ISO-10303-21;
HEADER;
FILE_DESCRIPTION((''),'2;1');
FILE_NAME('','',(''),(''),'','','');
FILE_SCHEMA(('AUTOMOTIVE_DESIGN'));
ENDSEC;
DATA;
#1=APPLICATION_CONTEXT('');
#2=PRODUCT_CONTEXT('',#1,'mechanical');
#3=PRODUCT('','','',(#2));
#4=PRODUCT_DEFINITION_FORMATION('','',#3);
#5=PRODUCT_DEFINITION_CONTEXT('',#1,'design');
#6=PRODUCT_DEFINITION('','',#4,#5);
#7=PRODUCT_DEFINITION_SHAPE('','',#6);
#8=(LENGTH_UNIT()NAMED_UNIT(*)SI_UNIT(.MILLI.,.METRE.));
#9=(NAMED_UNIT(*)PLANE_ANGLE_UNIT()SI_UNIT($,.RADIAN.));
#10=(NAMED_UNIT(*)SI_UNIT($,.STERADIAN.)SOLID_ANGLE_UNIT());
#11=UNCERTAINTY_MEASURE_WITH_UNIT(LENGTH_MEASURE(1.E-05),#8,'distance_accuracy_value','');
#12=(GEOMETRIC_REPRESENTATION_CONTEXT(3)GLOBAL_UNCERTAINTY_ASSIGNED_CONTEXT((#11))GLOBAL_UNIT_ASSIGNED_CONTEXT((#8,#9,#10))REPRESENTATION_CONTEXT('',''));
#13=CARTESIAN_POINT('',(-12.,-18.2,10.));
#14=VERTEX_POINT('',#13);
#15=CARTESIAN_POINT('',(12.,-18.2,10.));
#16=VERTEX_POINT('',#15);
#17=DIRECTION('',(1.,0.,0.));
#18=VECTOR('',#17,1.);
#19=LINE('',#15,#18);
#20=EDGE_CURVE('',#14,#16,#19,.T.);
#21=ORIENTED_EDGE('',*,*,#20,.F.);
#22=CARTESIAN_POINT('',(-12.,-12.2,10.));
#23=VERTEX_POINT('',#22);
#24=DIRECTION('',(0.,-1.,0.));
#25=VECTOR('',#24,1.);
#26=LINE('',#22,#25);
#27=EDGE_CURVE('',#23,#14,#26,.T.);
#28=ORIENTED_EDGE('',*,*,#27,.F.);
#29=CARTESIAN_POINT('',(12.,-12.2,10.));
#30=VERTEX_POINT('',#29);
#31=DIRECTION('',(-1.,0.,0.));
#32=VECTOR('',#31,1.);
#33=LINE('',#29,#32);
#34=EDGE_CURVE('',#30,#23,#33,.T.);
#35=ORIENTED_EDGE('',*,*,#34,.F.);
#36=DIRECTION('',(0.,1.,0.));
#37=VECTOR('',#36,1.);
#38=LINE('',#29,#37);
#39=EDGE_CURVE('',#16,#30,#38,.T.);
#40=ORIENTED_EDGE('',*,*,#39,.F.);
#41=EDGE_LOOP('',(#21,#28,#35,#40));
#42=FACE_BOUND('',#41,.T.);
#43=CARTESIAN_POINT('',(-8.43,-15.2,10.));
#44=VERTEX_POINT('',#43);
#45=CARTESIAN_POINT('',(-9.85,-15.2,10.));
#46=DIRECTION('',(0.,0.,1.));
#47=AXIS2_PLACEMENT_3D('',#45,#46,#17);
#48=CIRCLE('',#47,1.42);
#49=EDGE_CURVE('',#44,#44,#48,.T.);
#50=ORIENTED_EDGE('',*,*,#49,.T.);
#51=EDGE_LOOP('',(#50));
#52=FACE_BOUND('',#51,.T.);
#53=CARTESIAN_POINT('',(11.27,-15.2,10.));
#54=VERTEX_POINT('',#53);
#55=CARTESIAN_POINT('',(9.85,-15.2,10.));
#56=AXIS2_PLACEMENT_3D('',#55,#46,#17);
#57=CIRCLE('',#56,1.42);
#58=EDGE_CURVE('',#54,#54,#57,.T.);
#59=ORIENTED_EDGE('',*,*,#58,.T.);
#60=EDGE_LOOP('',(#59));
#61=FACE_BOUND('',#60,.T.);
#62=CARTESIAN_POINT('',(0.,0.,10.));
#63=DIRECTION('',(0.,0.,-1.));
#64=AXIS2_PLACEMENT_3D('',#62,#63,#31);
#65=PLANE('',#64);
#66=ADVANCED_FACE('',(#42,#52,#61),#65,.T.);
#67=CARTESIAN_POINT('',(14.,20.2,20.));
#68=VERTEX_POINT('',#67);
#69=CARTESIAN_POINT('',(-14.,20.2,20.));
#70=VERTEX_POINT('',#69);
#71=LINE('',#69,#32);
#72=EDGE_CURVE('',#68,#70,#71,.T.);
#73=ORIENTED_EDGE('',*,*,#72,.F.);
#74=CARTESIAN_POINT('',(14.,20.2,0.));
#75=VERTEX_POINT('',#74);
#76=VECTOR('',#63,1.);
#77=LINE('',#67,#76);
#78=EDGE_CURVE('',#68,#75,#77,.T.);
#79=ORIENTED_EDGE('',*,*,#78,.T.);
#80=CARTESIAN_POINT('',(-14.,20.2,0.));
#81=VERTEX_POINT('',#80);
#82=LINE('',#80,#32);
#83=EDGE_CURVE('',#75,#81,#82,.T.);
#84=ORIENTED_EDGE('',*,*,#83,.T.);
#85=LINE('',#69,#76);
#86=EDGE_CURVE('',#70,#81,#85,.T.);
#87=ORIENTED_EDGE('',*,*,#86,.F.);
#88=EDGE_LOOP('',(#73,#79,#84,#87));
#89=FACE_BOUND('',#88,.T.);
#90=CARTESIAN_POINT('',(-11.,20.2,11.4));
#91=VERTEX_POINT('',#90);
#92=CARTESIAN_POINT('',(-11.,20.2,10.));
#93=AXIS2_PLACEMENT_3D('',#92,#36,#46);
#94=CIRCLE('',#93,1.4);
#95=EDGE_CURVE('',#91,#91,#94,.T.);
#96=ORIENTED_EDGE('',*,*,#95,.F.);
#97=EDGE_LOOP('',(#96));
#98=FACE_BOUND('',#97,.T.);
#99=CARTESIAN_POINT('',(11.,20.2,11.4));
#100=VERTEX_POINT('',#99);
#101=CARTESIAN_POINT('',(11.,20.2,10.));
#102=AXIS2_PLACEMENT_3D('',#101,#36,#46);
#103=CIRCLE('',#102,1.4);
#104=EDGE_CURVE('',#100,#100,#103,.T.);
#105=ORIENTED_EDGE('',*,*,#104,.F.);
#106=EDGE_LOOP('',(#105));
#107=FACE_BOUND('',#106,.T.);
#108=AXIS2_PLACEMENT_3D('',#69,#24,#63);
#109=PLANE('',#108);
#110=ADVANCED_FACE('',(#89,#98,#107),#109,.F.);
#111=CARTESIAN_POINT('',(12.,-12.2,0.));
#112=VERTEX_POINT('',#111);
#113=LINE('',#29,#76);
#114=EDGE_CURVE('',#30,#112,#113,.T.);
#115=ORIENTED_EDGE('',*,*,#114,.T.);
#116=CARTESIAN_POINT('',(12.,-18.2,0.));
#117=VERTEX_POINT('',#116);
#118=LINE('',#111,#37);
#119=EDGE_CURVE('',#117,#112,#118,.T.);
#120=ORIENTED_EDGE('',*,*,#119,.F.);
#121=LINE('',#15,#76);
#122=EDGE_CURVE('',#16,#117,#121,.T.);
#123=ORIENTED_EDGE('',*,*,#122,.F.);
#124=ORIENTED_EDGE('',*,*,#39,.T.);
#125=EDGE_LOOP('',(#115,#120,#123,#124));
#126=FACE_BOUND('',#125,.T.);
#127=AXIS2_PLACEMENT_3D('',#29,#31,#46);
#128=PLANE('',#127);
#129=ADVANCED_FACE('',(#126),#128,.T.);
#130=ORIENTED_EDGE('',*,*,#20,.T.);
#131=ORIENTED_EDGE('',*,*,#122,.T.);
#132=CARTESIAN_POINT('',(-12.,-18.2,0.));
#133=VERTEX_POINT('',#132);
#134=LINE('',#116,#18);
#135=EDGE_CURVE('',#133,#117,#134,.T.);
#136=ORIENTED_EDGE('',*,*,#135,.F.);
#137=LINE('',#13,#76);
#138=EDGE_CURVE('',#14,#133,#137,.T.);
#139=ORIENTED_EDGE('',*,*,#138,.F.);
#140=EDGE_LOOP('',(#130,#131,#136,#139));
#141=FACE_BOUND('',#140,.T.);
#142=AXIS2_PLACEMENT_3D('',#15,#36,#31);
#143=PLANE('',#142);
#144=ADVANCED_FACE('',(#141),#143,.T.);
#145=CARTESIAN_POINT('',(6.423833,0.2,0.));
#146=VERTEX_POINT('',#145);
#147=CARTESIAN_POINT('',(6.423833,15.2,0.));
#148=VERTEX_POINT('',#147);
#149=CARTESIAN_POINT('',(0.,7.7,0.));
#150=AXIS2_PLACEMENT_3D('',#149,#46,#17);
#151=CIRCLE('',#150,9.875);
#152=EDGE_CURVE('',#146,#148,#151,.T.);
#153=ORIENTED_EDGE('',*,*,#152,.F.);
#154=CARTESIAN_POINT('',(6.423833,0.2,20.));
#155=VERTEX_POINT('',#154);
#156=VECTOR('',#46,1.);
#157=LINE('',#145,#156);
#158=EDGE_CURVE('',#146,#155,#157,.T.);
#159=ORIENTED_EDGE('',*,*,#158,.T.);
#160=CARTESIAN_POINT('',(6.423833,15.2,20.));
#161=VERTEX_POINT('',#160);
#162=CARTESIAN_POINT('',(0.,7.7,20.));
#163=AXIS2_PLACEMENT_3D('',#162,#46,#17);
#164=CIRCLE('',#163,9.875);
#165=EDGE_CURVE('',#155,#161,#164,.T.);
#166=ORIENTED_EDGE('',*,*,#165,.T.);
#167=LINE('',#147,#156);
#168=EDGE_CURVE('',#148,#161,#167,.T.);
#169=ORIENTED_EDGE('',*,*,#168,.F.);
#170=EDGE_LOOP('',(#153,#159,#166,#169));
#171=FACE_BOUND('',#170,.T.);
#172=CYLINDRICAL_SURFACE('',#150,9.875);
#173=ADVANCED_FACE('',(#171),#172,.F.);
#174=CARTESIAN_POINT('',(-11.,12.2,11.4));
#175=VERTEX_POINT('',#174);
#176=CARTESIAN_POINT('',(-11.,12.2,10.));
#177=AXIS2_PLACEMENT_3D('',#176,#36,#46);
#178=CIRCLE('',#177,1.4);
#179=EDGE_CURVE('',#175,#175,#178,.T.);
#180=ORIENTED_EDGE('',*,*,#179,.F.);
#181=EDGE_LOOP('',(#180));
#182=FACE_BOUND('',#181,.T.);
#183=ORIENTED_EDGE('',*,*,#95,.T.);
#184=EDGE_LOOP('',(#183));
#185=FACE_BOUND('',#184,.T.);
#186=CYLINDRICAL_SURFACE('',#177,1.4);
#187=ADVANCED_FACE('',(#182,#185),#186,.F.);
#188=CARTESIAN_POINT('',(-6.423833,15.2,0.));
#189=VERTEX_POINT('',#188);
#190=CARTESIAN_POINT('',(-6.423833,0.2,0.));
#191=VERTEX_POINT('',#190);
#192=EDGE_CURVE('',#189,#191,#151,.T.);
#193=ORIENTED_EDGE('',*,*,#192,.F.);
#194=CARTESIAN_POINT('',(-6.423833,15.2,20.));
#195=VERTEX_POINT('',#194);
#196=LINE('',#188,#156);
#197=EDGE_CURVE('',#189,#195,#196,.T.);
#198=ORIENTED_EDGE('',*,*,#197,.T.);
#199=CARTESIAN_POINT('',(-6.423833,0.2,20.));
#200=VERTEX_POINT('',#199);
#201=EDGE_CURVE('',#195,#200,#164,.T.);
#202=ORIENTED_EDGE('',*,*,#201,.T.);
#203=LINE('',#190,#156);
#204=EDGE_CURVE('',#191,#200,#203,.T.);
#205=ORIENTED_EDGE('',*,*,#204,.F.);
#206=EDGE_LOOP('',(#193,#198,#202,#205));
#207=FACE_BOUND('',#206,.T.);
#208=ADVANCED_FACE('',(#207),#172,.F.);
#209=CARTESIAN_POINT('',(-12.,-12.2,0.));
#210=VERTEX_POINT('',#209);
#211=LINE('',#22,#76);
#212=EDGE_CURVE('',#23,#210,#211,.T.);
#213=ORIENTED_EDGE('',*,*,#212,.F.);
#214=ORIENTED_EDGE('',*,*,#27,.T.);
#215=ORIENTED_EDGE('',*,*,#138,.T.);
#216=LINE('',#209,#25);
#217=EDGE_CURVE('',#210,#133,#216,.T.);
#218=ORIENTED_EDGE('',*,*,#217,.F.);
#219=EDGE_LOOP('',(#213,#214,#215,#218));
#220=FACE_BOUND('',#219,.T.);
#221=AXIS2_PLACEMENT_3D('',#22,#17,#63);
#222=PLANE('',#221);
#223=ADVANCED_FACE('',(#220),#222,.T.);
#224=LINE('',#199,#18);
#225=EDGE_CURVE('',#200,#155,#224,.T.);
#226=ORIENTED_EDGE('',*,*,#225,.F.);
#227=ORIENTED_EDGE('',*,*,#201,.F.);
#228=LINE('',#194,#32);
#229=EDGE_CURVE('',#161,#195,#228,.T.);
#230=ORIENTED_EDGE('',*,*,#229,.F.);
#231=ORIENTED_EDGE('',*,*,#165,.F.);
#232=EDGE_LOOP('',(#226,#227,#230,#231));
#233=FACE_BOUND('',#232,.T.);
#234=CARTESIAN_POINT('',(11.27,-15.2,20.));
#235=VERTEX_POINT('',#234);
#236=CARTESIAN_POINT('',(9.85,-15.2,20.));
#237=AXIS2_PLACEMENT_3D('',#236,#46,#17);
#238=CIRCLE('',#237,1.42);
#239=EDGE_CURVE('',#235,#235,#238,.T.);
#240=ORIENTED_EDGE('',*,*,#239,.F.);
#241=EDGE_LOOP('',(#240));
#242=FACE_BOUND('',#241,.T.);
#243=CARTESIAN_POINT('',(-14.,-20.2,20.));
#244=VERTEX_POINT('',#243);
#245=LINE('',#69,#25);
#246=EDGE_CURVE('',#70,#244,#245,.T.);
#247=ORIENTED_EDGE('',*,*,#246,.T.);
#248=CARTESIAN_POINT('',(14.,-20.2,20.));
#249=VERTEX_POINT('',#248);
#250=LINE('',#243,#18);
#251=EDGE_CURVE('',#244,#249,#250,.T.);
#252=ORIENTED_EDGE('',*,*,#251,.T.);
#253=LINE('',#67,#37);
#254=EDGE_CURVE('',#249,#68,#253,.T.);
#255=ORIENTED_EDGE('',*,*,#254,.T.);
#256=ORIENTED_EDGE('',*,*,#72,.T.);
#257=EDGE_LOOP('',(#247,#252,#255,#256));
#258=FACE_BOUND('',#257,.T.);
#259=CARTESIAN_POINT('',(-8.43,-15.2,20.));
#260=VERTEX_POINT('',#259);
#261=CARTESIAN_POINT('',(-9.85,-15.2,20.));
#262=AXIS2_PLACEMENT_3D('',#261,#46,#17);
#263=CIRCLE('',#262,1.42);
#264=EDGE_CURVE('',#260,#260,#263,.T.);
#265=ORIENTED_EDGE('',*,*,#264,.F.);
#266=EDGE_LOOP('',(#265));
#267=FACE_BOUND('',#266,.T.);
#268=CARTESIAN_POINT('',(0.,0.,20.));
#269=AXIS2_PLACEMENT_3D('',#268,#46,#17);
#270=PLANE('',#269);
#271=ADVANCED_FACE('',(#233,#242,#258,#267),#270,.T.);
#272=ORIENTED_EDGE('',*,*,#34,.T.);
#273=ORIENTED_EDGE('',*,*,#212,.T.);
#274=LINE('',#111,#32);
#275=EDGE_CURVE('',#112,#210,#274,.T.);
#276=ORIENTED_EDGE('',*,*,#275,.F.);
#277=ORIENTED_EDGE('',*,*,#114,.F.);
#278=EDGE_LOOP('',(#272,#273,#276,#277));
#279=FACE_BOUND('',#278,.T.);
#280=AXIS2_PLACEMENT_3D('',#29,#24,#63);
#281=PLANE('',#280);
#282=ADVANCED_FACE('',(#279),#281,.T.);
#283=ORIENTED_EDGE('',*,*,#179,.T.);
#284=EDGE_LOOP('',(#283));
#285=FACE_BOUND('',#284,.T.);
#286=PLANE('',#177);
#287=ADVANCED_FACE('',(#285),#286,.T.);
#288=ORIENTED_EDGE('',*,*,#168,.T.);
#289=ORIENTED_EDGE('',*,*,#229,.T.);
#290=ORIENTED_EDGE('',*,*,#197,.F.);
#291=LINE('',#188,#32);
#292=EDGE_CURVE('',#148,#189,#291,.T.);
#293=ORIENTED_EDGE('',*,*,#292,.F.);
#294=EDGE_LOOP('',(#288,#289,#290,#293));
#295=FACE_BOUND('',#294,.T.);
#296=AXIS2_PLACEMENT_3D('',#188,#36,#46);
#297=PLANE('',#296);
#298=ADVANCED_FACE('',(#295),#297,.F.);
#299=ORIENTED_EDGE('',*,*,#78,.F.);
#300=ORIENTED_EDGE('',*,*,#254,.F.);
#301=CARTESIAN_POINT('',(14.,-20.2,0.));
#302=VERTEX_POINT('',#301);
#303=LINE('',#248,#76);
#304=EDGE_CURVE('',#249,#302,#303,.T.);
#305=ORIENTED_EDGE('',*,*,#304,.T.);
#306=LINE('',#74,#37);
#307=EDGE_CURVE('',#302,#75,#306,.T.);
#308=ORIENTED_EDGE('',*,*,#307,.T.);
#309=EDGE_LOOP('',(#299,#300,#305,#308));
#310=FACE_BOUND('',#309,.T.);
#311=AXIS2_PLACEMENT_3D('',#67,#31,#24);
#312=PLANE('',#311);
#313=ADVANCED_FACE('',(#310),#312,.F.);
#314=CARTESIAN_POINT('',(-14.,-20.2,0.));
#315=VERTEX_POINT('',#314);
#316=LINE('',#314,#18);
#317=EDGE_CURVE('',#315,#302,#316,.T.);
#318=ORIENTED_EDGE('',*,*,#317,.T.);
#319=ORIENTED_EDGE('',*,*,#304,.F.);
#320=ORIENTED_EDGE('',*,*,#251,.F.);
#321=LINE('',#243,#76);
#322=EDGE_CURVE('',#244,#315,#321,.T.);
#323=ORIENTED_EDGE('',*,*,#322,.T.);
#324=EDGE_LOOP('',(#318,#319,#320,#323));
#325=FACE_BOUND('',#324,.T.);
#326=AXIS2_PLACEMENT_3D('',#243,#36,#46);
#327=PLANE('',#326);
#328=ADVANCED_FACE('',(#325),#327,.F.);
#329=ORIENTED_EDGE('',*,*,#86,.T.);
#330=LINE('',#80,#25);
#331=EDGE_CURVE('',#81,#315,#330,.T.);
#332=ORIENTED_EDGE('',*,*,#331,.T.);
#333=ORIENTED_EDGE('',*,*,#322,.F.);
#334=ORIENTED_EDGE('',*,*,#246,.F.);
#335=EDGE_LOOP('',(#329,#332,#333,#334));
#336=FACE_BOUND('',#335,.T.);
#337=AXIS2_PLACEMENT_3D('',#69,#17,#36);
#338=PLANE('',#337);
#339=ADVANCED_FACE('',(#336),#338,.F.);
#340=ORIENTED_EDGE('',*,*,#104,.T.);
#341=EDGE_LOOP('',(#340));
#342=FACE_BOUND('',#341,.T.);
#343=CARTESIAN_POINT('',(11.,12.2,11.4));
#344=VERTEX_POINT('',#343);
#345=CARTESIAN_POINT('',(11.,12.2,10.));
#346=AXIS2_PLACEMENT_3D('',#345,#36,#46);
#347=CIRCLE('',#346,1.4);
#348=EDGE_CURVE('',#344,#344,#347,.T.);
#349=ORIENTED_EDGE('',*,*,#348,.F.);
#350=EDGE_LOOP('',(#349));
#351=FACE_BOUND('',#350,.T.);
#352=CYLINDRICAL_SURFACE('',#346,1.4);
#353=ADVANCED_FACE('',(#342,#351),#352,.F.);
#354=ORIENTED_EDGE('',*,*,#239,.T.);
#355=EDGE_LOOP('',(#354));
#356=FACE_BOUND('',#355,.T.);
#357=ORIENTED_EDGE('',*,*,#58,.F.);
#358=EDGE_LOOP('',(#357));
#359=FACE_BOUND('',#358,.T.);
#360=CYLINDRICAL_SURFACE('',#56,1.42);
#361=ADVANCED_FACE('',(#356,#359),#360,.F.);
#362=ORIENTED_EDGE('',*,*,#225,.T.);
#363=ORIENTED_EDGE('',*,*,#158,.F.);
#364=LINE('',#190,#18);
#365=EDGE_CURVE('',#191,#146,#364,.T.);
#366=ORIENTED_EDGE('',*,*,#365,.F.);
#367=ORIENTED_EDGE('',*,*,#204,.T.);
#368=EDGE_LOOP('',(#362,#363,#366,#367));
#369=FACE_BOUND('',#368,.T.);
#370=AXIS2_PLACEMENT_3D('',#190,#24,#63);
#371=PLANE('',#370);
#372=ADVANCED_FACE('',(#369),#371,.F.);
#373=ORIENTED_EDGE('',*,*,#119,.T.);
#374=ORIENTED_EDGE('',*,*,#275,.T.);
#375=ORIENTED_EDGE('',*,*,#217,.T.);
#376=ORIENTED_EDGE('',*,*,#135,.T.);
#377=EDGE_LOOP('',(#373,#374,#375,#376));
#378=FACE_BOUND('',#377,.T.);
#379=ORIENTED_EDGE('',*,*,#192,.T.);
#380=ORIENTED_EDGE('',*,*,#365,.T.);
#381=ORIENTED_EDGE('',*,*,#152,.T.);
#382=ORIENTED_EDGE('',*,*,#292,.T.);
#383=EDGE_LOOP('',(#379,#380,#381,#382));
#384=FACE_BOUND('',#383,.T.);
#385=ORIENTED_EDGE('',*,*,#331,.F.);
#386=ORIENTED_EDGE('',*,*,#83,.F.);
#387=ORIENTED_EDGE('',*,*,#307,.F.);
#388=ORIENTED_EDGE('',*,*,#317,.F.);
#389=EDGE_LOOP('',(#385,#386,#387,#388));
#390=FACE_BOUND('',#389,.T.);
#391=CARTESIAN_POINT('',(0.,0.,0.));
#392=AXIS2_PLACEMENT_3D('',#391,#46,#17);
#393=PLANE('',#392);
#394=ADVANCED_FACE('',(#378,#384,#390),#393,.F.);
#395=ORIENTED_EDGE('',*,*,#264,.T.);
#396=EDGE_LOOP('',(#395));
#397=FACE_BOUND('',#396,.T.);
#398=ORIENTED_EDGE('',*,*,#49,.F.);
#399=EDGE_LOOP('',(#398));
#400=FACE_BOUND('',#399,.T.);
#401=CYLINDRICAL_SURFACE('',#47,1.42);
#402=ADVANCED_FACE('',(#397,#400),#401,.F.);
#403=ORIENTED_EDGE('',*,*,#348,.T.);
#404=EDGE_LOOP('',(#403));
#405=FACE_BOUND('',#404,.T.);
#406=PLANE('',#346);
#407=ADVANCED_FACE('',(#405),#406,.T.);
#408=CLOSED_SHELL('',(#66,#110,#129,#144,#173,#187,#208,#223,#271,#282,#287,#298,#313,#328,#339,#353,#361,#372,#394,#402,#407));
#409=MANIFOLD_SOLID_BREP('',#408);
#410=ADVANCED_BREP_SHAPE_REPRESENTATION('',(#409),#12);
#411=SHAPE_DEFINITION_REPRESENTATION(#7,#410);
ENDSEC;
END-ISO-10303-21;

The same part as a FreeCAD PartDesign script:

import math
import FreeCAD as App
import Part
import Sketcher
Q = App.Units.Quantity


def add_polygon(sketch, points):
    """Adds a closed chain of lines whose ends are joined by coincident constraints."""
    first, n = sketch.GeometryCount, len(points)
    for a, b in zip(points, points[1:] + points[:1]):
        sketch.addGeometry(Part.LineSegment(App.Vector(*a, 0), App.Vector(*b, 0)), False)
    for i in range(n):
        sketch.addConstraint(Sketcher.Constraint("Coincident", first + i, 2, first + (i + 1) % n, 1))

doc = App.newDocument("Part")
params = doc.addObject("Spreadsheet::Sheet", "Params")
for row, (alias, value) in enumerate([
    ("sketch1_width", "28 mm"),
    ("sketch1_height", "40.4 mm"),
    ("pad1_length", "20 mm"),
    ("sketch3_diameter", "2.84 mm"),
    ("pocket2_length", "10 mm"),
    ("sketch4_width", "24 mm"),
    ("sketch4_height", "6 mm"),
    ("pocket3_length", "10 mm"),
    ("sketch5_diameter", "2.8 mm"),
    ("pocket4_length", "8 mm"),
], start=1):
    params.set(f"A{row}", alias)
    params.set(f"B{row}", "=" + value)
    params.setAlias(f"B{row}", alias)

body = doc.addObject("PartDesign::Body", "Body")

sketch1 = body.newObject("Sketcher::SketchObject", "Sketch")
sketch1.AttachmentSupport = (doc.getObject("XY_Plane"), [""])
sketch1.MapMode = "FlatFace"
add_polygon(sketch1, [(-14, 20.2), (-14, -20.2), (14, -20.2), (14, 20.2)])
sketch1.addConstraint(Sketcher.Constraint("Vertical", 0))
sketch1.addConstraint(Sketcher.Constraint("Horizontal", 1))
sketch1.addConstraint(Sketcher.Constraint("Vertical", 2))
sketch1.addConstraint(Sketcher.Constraint("Horizontal", 3))
sketch1.addConstraint(Sketcher.Constraint("Symmetric", 0, 2, 2, 2, -1, 1))
sketch1.addConstraint(Sketcher.Constraint("DistanceX", 1, 1, 1, 2, Q("28 mm")))
sketch1.addConstraint(Sketcher.Constraint("DistanceY", 0, 2, 0, 1, Q("40.4 mm")))
sketch1.setExpression("Constraints[9]", "Params.sketch1_width")
sketch1.setExpression("Constraints[10]", "Params.sketch1_height")
pad1 = body.newObject("PartDesign::Pad", "Pad")
pad1.Profile = sketch1
pad1.setExpression("Length", "Params.pad1_length")

sketch2 = body.newObject("Sketcher::SketchObject", "Sketch001")
sketch2.AttachmentSupport = (doc.getObject("XY_Plane"), [""])
sketch2.MapMode = "FlatFace"
sketch2.AttachmentOffset = App.Placement(App.Vector(0, 0, 20), App.Rotation())
sketch2.addGeometry(Part.LineSegment(App.Vector(6.423833, 15.2, 0), App.Vector(-6.423833, 15.2, 0)), False)
sketch2.addGeometry(Part.ArcOfCircle(Part.Circle(App.Vector(0, 7.7, 0), App.Vector(0, 0, 1), 9.875), math.radians(130.580419), math.radians(229.419581)), False)
sketch2.addGeometry(Part.LineSegment(App.Vector(-6.423833, 0.2, 0), App.Vector(6.423833, 0.2, 0)), False)
sketch2.addGeometry(Part.ArcOfCircle(Part.Circle(App.Vector(0, 7.7, 0), App.Vector(0, 0, 1), 9.875), math.radians(-49.419581), math.radians(49.419581)), False)
sketch2.addConstraint(Sketcher.Constraint("Coincident", 0, 2, 1, 1))
sketch2.addConstraint(Sketcher.Constraint("Coincident", 1, 2, 2, 1))
sketch2.addConstraint(Sketcher.Constraint("Coincident", 2, 2, 3, 1))
sketch2.addConstraint(Sketcher.Constraint("Coincident", 3, 2, 0, 1))
sketch2.addConstraint(Sketcher.Constraint("Horizontal", 0))
sketch2.addConstraint(Sketcher.Constraint("Horizontal", 2))
sketch2.addConstraint(Sketcher.Constraint("Coincident", 3, 3, 1, 3))
sketch2.addConstraint(Sketcher.Constraint("Equal", 1, 3))
sketch2.addConstraint(Sketcher.Constraint("PointOnObject", 1, 3, -2))
sketch2.addConstraint(Sketcher.Constraint("Vertical", 0, 2, 1, 2))
sketch2.addConstraint(Sketcher.Constraint("Radius", 1, Q("9.875 mm")))
sketch2.addConstraint(Sketcher.Constraint("DistanceY", 1, 2, 0, 2, Q("15 mm")))
sketch2.addConstraint(Sketcher.Constraint("DistanceY", -1, 1, 1, 3, Q("7.7 mm")))
pocket1 = body.newObject("PartDesign::Pocket", "Pocket")
pocket1.Profile = sketch2
pocket1.Type = "ThroughAll"

sketch3 = body.newObject("Sketcher::SketchObject", "Sketch002")
sketch3.AttachmentSupport = (doc.getObject("XY_Plane"), [""])
sketch3.MapMode = "FlatFace"
sketch3.AttachmentOffset = App.Placement(App.Vector(0, 0, 20), App.Rotation())
sketch3.addGeometry(Part.Circle(App.Vector(-9.85, -15.2, 0), App.Vector(0, 0, 1), 1.42), False)
sketch3.addGeometry(Part.Circle(App.Vector(9.85, -15.2, 0), App.Vector(0, 0, 1), 1.42), False)
sketch3.addConstraint(Sketcher.Constraint("Equal", 0, 1))
sketch3.addConstraint(Sketcher.Constraint("Symmetric", 0, 3, 1, 3, -2))
sketch3.addConstraint(Sketcher.Constraint("Diameter", 0, Q("2.84 mm")))
sketch3.addConstraint(Sketcher.Constraint("DistanceY", 0, 3, -1, 1, Q("15.2 mm")))
sketch3.addConstraint(Sketcher.Constraint("DistanceX", 0, 3, 1, 3, Q("19.7 mm")))
sketch3.setExpression("Constraints[2]", "Params.sketch3_diameter")
pocket2 = body.newObject("PartDesign::Pocket", "Pocket001")
pocket2.Profile = sketch3
pocket2.setExpression("Length", "Params.pocket2_length")

sketch4 = body.newObject("Sketcher::SketchObject", "Sketch003")
sketch4.AttachmentSupport = (doc.getObject("XY_Plane"), [""])
sketch4.MapMode = "FlatFace"
add_polygon(sketch4, [(-12, -12.2), (-12, -18.2), (12, -18.2), (12, -12.2)])
sketch4.addConstraint(Sketcher.Constraint("Vertical", 0))
sketch4.addConstraint(Sketcher.Constraint("Horizontal", 1))
sketch4.addConstraint(Sketcher.Constraint("Vertical", 2))
sketch4.addConstraint(Sketcher.Constraint("Horizontal", 3))
sketch4.addConstraint(Sketcher.Constraint("DistanceX", 1, 1, 1, 2, Q("24 mm")))
sketch4.addConstraint(Sketcher.Constraint("DistanceY", 0, 2, 0, 1, Q("6 mm")))
sketch4.addConstraint(Sketcher.Constraint("DistanceX", 0, 2, -1, 1, Q("12 mm")))
sketch4.addConstraint(Sketcher.Constraint("DistanceY", 0, 2, -1, 1, Q("18.2 mm")))
sketch4.setExpression("Constraints[8]", "Params.sketch4_width")
sketch4.setExpression("Constraints[9]", "Params.sketch4_height")
pocket3 = body.newObject("PartDesign::Pocket", "Pocket002")
pocket3.Profile = sketch4
pocket3.setExpression("Length", "Params.pocket3_length")
pocket3.Reversed = True

sketch5 = body.newObject("Sketcher::SketchObject", "Sketch004")
sketch5.AttachmentSupport = (doc.getObject("XZ_Plane"), [""])
sketch5.MapMode = "FlatFace"
sketch5.AttachmentOffset = App.Placement(App.Vector(0, 0, -20.2), App.Rotation())
sketch5.addGeometry(Part.Circle(App.Vector(-11, 10, 0), App.Vector(0, 0, 1), 1.4), False)
sketch5.addGeometry(Part.Circle(App.Vector(11, 10, 0), App.Vector(0, 0, 1), 1.4), False)
sketch5.addConstraint(Sketcher.Constraint("Equal", 0, 1))
sketch5.addConstraint(Sketcher.Constraint("Symmetric", 0, 3, 1, 3, -2))
sketch5.addConstraint(Sketcher.Constraint("Diameter", 0, Q("2.8 mm")))
sketch5.addConstraint(Sketcher.Constraint("DistanceX", 0, 3, -1, 1, Q("11 mm")))
sketch5.addConstraint(Sketcher.Constraint("DistanceY", -1, 1, 0, 3, Q("10 mm")))
sketch5.setExpression("Constraints[2]", "Params.sketch5_diameter")
pocket4 = body.newObject("PartDesign::Pocket", "Pocket003")
pocket4.Profile = sketch5
pocket4.setExpression("Length", "Params.pocket4_length")
pocket4.Reversed = True

doc.recompute()
